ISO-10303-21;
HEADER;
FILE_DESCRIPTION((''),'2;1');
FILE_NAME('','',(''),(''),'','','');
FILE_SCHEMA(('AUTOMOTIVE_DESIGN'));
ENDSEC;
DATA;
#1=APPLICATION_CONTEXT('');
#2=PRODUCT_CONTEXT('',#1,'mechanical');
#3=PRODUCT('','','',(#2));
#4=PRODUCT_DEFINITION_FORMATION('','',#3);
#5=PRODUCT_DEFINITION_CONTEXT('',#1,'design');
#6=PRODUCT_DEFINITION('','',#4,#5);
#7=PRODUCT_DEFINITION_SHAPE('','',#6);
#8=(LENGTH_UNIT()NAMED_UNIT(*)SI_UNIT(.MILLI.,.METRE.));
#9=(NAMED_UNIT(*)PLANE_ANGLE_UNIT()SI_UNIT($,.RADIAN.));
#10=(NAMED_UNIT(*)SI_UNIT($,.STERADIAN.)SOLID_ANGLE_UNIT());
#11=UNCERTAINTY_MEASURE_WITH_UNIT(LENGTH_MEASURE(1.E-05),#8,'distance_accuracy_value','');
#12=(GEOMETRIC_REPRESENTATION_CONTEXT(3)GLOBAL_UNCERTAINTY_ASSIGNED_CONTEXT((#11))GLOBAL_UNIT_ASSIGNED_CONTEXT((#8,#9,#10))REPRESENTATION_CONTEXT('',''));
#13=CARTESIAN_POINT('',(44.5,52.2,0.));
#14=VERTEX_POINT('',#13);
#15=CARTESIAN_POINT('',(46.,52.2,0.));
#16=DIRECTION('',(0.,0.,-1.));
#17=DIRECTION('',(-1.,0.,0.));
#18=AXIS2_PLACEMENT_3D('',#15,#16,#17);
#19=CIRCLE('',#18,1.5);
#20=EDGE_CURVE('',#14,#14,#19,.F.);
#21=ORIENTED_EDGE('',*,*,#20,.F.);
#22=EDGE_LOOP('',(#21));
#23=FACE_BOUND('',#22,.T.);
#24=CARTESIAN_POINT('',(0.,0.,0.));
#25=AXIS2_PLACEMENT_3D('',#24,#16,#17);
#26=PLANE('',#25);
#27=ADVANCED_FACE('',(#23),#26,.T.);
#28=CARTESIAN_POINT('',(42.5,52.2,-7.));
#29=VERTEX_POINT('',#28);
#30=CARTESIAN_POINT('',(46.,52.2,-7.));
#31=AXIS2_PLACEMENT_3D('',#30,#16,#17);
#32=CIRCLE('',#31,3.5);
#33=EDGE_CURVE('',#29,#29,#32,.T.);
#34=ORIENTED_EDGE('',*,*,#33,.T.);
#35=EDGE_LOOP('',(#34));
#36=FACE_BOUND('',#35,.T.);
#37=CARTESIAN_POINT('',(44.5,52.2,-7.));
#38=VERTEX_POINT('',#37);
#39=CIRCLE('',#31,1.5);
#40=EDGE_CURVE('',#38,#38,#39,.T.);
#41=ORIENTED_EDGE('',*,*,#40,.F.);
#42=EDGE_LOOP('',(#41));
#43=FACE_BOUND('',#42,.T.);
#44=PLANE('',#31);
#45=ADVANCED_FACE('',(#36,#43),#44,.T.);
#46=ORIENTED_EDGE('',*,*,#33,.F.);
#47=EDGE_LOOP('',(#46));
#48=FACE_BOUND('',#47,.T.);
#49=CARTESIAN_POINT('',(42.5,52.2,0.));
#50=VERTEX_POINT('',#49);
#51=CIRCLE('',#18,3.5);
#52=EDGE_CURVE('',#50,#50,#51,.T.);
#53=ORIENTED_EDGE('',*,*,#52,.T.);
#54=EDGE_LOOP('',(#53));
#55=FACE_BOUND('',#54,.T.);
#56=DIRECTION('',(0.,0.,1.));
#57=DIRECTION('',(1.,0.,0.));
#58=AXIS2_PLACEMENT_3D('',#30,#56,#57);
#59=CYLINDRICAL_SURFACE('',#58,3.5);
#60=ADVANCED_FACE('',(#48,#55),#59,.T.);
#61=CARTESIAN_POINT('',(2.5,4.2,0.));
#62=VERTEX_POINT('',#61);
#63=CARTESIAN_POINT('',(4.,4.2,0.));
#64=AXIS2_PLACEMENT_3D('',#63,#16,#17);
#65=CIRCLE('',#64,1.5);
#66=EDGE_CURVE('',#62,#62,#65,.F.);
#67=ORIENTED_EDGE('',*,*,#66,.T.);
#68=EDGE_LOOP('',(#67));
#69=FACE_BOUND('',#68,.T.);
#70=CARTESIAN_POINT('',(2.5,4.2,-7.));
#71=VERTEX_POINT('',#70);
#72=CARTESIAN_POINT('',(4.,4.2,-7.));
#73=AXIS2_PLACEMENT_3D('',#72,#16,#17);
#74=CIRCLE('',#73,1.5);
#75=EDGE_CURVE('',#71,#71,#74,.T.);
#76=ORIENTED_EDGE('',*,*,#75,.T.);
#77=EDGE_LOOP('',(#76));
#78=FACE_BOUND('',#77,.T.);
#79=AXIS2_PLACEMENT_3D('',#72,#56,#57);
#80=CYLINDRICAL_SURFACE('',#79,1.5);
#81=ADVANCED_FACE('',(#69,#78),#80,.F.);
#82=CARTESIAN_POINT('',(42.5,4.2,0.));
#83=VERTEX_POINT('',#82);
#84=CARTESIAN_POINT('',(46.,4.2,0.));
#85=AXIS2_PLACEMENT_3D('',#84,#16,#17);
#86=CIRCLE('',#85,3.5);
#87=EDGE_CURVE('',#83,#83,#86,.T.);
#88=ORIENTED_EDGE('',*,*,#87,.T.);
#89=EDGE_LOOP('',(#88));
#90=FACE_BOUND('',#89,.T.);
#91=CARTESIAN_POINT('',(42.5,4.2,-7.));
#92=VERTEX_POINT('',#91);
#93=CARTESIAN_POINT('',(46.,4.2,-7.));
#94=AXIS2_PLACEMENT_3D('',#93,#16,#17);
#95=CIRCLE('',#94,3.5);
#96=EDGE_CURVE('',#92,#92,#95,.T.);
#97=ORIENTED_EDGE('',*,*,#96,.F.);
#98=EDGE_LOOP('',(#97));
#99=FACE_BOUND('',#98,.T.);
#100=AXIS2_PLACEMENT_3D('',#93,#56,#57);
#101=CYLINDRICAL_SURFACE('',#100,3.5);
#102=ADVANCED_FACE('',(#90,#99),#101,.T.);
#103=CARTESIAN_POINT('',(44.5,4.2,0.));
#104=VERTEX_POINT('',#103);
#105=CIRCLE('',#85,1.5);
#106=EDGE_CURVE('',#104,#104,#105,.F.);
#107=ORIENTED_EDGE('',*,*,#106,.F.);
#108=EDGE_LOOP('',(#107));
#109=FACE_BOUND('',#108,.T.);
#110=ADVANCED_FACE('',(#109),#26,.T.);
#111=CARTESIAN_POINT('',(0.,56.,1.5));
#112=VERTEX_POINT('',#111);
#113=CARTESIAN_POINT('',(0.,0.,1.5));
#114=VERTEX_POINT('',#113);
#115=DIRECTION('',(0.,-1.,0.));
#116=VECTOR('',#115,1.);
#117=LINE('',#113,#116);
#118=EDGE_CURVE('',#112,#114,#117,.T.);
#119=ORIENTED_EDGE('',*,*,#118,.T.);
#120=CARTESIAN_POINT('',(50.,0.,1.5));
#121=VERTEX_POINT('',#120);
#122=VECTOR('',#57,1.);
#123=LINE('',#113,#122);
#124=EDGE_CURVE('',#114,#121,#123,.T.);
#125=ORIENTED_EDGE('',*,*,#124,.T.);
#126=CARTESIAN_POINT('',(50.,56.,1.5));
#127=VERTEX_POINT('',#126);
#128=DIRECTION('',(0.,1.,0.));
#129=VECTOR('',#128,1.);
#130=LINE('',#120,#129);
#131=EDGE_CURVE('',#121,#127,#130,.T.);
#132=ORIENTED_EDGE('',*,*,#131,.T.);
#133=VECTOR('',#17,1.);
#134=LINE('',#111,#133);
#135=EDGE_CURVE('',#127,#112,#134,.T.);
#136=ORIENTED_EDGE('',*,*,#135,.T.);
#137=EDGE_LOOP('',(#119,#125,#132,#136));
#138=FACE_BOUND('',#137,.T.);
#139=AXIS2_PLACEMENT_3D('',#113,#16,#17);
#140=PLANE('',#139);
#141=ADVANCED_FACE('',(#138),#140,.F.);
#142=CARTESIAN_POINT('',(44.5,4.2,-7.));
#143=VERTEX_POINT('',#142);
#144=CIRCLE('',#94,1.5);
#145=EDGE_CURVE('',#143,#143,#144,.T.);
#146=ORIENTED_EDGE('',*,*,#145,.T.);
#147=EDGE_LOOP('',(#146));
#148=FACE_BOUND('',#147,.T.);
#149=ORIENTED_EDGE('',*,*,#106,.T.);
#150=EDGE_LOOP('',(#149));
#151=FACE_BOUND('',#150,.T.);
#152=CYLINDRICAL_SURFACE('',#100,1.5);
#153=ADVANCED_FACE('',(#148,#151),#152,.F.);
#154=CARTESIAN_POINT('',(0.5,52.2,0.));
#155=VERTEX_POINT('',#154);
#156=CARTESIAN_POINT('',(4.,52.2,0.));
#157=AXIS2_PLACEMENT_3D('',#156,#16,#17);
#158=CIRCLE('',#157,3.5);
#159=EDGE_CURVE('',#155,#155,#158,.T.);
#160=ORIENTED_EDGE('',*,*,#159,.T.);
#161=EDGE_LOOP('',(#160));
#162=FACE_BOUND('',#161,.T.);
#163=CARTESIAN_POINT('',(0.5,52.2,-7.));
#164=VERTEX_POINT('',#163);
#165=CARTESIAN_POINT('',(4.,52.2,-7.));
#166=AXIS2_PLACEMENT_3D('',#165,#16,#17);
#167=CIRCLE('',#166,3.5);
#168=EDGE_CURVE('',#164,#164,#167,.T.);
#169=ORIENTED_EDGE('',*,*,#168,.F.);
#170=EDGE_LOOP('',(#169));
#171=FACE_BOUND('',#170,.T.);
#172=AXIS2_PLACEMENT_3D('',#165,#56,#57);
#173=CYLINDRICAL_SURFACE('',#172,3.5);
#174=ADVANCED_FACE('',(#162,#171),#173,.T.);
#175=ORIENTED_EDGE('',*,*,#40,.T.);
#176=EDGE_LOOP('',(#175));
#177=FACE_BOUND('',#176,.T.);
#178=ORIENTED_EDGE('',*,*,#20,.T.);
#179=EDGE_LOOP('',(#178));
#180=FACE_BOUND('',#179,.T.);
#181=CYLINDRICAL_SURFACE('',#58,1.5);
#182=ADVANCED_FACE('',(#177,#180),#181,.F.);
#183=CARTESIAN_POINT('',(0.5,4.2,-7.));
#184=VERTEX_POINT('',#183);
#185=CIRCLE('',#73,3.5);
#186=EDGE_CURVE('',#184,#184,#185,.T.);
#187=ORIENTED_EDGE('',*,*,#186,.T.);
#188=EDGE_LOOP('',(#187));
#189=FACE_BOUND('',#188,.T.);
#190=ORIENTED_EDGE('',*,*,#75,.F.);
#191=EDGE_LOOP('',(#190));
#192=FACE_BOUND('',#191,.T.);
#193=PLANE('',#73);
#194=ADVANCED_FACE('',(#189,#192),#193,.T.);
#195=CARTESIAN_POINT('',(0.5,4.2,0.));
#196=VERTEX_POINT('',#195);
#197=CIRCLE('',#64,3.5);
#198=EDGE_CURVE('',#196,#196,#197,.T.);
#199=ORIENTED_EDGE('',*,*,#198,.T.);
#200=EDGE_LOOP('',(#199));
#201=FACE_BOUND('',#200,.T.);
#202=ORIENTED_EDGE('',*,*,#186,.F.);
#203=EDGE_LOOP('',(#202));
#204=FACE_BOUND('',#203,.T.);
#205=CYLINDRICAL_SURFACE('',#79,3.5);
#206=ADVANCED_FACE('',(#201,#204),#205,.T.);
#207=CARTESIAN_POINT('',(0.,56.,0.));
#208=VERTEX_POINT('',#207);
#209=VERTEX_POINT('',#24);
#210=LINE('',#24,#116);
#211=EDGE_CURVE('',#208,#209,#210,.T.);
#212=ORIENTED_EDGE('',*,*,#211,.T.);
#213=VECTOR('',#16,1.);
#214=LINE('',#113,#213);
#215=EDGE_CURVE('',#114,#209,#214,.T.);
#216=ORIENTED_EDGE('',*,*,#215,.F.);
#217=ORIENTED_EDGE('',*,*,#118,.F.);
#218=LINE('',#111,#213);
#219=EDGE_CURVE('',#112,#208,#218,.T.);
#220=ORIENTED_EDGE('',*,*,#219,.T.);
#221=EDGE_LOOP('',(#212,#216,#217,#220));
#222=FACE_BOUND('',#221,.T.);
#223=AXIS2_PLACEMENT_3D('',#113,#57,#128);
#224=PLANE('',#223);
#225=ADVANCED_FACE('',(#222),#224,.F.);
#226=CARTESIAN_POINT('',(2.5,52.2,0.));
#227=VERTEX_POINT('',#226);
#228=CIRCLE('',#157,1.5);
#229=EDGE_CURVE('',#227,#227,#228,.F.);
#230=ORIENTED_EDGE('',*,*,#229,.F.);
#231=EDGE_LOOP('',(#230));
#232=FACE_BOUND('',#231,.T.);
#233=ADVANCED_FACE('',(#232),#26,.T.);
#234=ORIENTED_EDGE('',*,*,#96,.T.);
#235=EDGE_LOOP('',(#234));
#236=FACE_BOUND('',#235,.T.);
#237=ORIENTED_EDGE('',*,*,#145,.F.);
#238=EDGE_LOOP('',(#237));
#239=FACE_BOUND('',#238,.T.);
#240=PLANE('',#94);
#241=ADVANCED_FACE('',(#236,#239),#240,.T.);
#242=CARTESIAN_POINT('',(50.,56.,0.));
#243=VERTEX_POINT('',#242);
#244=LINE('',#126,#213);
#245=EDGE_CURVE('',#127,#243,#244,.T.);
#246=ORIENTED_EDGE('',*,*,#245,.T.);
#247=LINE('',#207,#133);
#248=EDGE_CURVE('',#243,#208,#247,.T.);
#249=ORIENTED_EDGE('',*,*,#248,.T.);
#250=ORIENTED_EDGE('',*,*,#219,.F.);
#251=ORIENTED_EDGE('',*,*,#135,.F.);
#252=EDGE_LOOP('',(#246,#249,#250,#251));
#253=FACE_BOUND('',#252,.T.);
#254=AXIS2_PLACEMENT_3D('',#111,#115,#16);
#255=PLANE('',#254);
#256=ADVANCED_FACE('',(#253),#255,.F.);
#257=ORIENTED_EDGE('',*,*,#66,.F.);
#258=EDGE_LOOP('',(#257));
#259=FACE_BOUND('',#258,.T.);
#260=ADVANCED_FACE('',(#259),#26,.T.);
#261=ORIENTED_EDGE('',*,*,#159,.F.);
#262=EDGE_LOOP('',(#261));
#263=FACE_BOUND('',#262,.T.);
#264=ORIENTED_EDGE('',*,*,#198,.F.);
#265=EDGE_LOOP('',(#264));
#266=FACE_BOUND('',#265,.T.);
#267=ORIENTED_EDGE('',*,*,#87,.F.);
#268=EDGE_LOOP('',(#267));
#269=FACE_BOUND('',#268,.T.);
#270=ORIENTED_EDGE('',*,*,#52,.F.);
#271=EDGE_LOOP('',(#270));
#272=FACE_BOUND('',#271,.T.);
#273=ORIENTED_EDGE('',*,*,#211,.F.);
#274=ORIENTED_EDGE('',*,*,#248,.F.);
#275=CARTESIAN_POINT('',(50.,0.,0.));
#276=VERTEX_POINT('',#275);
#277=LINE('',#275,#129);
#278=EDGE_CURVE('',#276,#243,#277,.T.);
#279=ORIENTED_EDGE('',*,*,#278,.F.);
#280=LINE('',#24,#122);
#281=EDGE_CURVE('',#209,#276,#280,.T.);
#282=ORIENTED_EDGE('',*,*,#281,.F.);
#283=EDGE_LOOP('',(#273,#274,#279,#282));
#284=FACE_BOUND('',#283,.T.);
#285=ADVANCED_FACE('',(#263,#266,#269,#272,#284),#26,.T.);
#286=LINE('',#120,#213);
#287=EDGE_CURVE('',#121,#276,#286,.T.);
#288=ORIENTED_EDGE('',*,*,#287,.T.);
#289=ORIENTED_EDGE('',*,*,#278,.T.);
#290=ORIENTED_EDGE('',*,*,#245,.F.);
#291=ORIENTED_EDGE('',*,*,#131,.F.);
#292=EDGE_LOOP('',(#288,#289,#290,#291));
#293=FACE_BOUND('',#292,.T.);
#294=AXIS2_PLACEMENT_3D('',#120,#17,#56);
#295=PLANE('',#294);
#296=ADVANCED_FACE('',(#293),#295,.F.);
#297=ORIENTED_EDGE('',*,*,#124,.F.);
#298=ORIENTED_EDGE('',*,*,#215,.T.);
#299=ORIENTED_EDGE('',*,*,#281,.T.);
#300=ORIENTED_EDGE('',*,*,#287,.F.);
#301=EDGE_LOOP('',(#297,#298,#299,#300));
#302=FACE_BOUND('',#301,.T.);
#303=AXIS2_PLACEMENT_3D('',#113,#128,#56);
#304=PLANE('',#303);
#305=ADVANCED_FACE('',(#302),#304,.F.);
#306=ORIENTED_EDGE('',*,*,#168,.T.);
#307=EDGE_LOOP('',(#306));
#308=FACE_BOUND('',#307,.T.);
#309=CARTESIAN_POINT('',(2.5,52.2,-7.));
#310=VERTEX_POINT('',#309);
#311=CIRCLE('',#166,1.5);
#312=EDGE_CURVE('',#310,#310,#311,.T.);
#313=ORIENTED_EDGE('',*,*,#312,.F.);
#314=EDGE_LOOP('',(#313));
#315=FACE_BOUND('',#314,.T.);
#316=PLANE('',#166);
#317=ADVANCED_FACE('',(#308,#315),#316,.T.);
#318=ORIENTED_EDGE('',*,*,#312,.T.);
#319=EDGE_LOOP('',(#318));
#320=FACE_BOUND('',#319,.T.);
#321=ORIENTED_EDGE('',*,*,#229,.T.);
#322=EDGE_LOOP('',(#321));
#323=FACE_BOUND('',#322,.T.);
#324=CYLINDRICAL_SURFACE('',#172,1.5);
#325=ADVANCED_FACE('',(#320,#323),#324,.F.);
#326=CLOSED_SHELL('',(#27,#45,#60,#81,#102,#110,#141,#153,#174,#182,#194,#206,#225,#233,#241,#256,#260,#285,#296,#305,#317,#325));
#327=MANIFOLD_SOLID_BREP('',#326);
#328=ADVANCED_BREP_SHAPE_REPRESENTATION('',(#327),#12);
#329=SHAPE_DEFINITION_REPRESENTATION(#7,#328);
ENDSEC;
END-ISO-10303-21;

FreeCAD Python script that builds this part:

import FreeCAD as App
import Part
import Sketcher

V = App.Vector
Q = App.Units.Quantity

doc = App.newDocument("Part")
body = doc.addObject("PartDesign::Body", "Body")

sketch1 = body.newObject("Sketcher::SketchObject", "Sketch")
sketch1.AttachmentSupport = (doc.getObject("XY_Plane"), [""])
sketch1.MapMode = "FlatFace"
sketch1.addGeometry(Part.LineSegment(V(0, 56, 0), V(0, 0, 0)), False)
sketch1.addGeometry(Part.LineSegment(V(0, 0, 0), V(50, 0, 0)), False)
sketch1.addGeometry(Part.LineSegment(V(50, 0, 0), V(50, 56, 0)), False)
sketch1.addGeometry(Part.LineSegment(V(50, 56, 0), V(0, 56, 0)), False)
sketch1.addConstraint(Sketcher.Constraint("Coincident", 0, 2, 1, 1))
sketch1.addConstraint(Sketcher.Constraint("Coincident", 1, 2, 2, 1))
sketch1.addConstraint(Sketcher.Constraint("Coincident", 2, 2, 3, 1))
sketch1.addConstraint(Sketcher.Constraint("Coincident", 3, 2, 0, 1))
sketch1.addConstraint(Sketcher.Constraint("Vertical", 0))
sketch1.addConstraint(Sketcher.Constraint("Horizontal", 1))
sketch1.addConstraint(Sketcher.Constraint("Vertical", 2))
sketch1.addConstraint(Sketcher.Constraint("Horizontal", 3))
sketch1.addConstraint(Sketcher.Constraint("Coincident", 0, 2, -1, 1))
sketch1.addConstraint(Sketcher.Constraint("DistanceX", 1, 1, 1, 2, Q("50 mm")))
sketch1.addConstraint(Sketcher.Constraint("DistanceY", 0, 2, 0, 1, Q("56 mm")))
pad1 = body.newObject("PartDesign::Pad", "Pad")
pad1.Profile = sketch1
pad1.Length = 1.5

sketch2 = body.newObject("Sketcher::SketchObject", "Sketch001")
sketch2.AttachmentSupport = (doc.getObject("XY_Plane"), [""])
sketch2.MapMode = "FlatFace"
sketch2.addGeometry(Part.Circle(V(46, 52.2, 0), V(0, 0, 1), 3.5), False)
sketch2.addGeometry(Part.Circle(V(46, 52.2, 0), V(0, 0, 1), 1.5), False)
sketch2.addGeometry(Part.Circle(V(4, 52.2, 0), V(0, 0, 1), 3.5), False)
sketch2.addGeometry(Part.Circle(V(4, 52.2, 0), V(0, 0, 1), 1.5), False)
sketch2.addGeometry(Part.Circle(V(46, 4.2, 0), V(0, 0, 1), 3.5), False)
sketch2.addGeometry(Part.Circle(V(46, 4.2, 0), V(0, 0, 1), 1.5), False)
sketch2.addGeometry(Part.Circle(V(4, 4.2, 0), V(0, 0, 1), 3.5), False)
sketch2.addGeometry(Part.Circle(V(4, 4.2, 0), V(0, 0, 1), 1.5), False)
sketch2.addConstraint(Sketcher.Constraint("Coincident", 1, 3, 0, 3))
sketch2.addConstraint(Sketcher.Constraint("Coincident", 3, 3, 2, 3))
sketch2.addConstraint(Sketcher.Constraint("Coincident", 5, 3, 4, 3))
sketch2.addConstraint(Sketcher.Constraint("Coincident", 7, 3, 6, 3))
sketch2.addConstraint(Sketcher.Constraint("Equal", 0, 2))
sketch2.addConstraint(Sketcher.Constraint("Equal", 1, 3))
sketch2.addConstraint(Sketcher.Constraint("Equal", 2, 4))
sketch2.addConstraint(Sketcher.Constraint("Equal", 3, 5))
sketch2.addConstraint(Sketcher.Constraint("Equal", 4, 6))
sketch2.addConstraint(Sketcher.Constraint("Equal", 5, 7))
sketch2.addConstraint(Sketcher.Constraint("Horizontal", 1, 3, 2, 3))
sketch2.addConstraint(Sketcher.Constraint("Horizontal", 5, 3, 6, 3))
sketch2.addConstraint(Sketcher.Constraint("Vertical", 1, 3, 4, 3))
sketch2.addConstraint(Sketcher.Constraint("Vertical", 3, 3, 6, 3))
sketch2.addConstraint(Sketcher.Constraint("Diameter", 0, Q("7 mm")))
sketch2.addConstraint(Sketcher.Constraint("Diameter", 1, Q("3 mm")))
sketch2.addConstraint(Sketcher.Constraint("DistanceX", -1, 1, 0, 3, Q("46 mm")))
sketch2.addConstraint(Sketcher.Constraint("DistanceX", -1, 1, 2, 3, Q("4 mm")))
sketch2.addConstraint(Sketcher.Constraint("DistanceY", 4, 3, 0, 3, Q("48 mm")))
sketch2.addConstraint(Sketcher.Constraint("DistanceY", -1, 1, 0, 3, Q("52.2 mm")))
pad2 = body.newObject("PartDesign::Pad", "Pad001")
pad2.Profile = sketch2
pad2.Length = 7
pad2.Reversed = True

doc.recompute()
